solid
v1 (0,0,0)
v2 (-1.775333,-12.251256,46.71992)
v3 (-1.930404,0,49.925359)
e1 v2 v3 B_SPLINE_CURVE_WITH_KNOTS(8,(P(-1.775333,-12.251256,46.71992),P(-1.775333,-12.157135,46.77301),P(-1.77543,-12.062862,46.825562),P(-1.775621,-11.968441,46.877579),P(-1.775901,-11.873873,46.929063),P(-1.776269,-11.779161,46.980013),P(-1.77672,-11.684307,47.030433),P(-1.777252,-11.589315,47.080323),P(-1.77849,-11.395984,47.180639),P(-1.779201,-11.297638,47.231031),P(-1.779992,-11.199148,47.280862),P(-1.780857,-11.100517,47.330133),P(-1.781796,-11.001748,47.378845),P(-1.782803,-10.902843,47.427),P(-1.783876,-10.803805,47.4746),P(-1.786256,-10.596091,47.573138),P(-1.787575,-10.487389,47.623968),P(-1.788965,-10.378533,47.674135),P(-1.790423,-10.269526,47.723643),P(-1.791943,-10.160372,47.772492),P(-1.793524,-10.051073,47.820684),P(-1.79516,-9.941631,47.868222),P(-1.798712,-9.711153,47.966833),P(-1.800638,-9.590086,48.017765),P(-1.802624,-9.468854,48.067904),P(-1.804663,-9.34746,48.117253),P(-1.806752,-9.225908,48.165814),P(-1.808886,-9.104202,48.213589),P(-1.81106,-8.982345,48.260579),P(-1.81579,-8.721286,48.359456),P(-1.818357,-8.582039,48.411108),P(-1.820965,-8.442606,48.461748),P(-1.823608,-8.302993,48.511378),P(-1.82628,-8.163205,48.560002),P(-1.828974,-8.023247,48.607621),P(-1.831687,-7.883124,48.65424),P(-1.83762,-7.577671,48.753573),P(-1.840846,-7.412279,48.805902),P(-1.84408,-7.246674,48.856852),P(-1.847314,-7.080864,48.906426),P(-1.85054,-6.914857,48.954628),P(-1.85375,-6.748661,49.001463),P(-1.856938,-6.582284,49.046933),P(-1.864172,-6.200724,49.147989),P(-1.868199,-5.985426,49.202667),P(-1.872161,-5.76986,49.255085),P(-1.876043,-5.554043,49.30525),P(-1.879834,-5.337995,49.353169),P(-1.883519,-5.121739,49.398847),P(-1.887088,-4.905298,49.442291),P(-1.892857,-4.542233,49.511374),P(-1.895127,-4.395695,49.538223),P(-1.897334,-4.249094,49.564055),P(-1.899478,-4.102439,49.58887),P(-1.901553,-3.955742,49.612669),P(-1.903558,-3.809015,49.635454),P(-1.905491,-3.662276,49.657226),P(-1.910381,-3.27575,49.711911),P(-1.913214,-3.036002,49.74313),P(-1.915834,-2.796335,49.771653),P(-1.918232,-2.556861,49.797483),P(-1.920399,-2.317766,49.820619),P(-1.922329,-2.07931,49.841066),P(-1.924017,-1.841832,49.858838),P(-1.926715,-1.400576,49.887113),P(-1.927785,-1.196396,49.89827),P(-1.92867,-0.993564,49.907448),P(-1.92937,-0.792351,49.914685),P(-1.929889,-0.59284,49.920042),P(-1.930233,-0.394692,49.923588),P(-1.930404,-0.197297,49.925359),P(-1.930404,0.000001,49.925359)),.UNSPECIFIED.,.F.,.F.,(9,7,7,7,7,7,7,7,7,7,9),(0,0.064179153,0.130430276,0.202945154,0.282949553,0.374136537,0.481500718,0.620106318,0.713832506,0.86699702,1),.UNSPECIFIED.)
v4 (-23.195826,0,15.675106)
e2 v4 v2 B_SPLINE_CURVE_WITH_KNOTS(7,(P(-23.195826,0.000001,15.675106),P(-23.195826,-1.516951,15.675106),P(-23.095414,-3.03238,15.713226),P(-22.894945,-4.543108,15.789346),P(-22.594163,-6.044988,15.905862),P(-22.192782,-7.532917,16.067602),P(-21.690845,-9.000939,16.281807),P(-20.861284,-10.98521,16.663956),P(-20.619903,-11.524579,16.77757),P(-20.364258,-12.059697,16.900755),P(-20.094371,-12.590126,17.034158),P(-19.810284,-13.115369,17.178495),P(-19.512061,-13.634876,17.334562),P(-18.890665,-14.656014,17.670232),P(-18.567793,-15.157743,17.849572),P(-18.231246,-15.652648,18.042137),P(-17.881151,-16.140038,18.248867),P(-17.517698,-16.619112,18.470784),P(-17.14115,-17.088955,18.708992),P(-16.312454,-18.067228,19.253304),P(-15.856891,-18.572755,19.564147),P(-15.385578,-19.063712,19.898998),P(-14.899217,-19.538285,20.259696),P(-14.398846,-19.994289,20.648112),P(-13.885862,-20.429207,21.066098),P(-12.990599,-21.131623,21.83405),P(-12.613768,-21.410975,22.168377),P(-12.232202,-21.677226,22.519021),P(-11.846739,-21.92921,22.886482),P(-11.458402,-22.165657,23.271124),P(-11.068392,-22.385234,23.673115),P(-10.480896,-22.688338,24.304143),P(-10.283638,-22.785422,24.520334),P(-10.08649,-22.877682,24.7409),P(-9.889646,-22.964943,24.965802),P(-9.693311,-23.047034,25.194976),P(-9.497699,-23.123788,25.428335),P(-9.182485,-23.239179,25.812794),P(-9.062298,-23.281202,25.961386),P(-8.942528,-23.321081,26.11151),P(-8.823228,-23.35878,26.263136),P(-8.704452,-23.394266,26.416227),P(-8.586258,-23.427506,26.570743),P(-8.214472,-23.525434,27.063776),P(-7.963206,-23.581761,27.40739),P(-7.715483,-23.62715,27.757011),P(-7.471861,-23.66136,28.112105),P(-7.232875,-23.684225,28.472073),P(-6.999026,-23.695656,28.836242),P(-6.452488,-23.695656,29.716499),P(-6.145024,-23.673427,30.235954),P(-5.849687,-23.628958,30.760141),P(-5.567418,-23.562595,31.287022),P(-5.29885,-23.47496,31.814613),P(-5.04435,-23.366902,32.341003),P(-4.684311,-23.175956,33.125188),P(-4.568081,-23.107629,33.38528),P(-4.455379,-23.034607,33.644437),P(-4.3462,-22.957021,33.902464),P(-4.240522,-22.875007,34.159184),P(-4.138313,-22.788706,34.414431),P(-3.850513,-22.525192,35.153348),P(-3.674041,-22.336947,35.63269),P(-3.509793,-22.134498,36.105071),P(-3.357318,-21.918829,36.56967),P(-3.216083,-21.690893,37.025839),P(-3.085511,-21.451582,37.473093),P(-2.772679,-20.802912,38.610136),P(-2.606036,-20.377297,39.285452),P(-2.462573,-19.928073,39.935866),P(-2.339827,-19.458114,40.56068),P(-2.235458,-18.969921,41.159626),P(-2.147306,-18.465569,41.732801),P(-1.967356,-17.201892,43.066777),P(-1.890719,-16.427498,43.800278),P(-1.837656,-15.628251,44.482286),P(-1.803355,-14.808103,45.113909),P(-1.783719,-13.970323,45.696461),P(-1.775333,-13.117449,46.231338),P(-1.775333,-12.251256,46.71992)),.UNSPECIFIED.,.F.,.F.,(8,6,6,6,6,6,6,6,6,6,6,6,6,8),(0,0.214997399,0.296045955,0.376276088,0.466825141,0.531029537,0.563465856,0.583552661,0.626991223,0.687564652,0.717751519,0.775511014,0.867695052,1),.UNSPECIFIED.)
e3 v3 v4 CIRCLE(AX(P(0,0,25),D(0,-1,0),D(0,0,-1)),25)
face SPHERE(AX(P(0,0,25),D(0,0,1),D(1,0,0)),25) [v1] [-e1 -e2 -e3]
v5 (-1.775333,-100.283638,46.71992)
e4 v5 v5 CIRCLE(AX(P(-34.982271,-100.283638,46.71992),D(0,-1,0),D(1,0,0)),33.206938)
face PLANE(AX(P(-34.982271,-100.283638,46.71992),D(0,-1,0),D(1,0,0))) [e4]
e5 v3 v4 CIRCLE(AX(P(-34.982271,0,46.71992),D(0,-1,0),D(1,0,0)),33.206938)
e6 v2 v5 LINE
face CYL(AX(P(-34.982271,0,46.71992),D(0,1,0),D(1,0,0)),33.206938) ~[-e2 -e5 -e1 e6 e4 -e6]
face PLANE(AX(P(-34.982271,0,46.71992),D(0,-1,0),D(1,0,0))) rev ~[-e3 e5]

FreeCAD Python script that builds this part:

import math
import FreeCAD as App
import Part
import Sketcher
Q = App.Units.Quantity

doc = App.newDocument("Part")
body = doc.addObject("PartDesign::Body", "Body")

# Sketch on XZ plane
sketch1 = body.newObject("Sketcher::SketchObject", "Sketch")
sketch1.AttachmentSupport = (doc.getObject("XZ_Plane"), [""])
sketch1.MapMode = "FlatFace"
sketch1.addGeometry([
    Part.LineSegment(App.Vector(0, 50, 0), App.Vector(0, 0, 0)),
    Part.ArcOfCircle(Part.Circle(App.Vector(0, 25, 0), App.Vector(0, 0, 1), 25), math.radians(-90), math.radians(90)),
], False)
sketch1.addConstraint([
    Sketcher.Constraint("Coincident", 0, 1, 1, 2),
    Sketcher.Constraint("Coincident", 1, 1, 0, 2),
    Sketcher.Constraint("Vertical", 0),
    Sketcher.Constraint("Coincident", 1, 1, -1, 1),
    Sketcher.Constraint("PointOnObject", 1, 3, -2),
    Sketcher.Constraint("Radius", 1, Q("25 mm")),
])
revolution = body.newObject("PartDesign::Revolution", "Revolution")
revolution.Profile = sketch1
revolution.ReferenceAxis = (sketch1, ["V_Axis"])
revolution.Angle = 360

# Sketch on XZ plane
sketch2 = body.newObject("Sketcher::SketchObject", "Sketch001")
sketch2.AttachmentSupport = (doc.getObject("XZ_Plane"), [""])
sketch2.MapMode = "FlatFace"
sketch2.addGeometry(Part.Circle(App.Vector(-35, 47, 0), App.Vector(0, 0, 1), 33), False)
sketch2.addConstraint([
    Sketcher.Constraint("Diameter", 0, Q("66.413876 mm")),
    Sketcher.Constraint("DistanceX", 0, 3, -1, 1, Q("34.982271 mm")),
    Sketcher.Constraint("DistanceY", -1, 1, 0, 3, Q("46.71992 mm")),
])
pad1 = body.newObject("PartDesign::Pad", "Pad")
pad1.Profile = sketch2
pad1.Length = 100.283638

doc.recompute()
